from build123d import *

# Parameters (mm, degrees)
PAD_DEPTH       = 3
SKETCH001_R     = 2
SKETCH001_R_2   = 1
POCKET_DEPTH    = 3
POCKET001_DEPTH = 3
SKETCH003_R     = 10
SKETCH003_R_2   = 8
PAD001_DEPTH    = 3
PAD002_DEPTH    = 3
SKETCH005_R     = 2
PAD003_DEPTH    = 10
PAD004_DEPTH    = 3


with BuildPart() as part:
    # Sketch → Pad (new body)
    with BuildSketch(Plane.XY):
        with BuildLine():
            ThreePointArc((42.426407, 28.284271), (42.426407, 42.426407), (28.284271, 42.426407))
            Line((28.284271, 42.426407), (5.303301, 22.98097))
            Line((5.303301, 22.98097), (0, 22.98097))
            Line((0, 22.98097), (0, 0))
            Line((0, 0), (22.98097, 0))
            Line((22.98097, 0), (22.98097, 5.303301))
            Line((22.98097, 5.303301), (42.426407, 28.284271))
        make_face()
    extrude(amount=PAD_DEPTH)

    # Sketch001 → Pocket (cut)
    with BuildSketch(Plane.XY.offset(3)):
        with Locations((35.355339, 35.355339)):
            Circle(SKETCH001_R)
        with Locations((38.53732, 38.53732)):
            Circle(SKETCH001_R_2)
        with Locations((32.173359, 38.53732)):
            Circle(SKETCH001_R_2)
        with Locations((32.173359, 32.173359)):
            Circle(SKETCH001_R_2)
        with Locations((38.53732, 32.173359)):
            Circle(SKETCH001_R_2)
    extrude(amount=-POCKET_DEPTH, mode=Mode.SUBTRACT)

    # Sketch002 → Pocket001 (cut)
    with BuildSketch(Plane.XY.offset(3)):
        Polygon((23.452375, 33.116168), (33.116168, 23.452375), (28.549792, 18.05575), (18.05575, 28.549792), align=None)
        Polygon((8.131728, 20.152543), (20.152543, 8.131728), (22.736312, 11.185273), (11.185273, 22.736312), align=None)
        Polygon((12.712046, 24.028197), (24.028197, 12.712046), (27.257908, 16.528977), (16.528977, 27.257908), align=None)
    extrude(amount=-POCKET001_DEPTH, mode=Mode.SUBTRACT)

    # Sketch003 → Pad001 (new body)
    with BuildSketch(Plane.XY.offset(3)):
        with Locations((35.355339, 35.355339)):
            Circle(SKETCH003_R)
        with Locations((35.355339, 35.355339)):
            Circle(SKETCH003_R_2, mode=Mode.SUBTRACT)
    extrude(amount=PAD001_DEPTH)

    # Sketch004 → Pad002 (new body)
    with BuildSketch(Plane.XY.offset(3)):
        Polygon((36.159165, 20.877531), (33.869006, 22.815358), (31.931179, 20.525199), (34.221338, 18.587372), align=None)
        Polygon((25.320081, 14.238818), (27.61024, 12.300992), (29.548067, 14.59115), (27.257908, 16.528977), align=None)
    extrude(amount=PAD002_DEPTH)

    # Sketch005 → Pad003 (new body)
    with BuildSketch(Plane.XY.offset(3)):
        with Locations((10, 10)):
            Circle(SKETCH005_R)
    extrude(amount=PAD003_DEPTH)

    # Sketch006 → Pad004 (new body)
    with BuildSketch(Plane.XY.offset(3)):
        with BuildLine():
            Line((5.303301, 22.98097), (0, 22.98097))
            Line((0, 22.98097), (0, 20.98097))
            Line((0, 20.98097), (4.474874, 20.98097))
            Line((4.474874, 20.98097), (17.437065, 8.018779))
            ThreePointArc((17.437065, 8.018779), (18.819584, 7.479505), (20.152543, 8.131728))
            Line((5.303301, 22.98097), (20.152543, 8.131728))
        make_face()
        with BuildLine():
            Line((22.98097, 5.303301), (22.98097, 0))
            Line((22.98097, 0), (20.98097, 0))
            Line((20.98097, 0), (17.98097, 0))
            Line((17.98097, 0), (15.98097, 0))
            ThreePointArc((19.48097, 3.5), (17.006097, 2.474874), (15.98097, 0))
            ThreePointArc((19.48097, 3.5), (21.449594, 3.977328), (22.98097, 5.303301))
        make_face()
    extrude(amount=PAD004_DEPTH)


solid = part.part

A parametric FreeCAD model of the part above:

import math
import FreeCAD as App
import Part
import Sketcher
Q = App.Units.Quantity

doc = App.newDocument("Part")
body = doc.addObject("PartDesign::Body", "Body")

sketch1 = body.newObject("Sketcher::SketchObject", "Sketch")
sketch1.AttachmentSupport = (doc.getObject("XY_Plane"), [""])
sketch1.MapMode = "FlatFace"
sketch1.addGeometry([
    Part.ArcOfCircle(Part.Circle(App.Vector(35, 35, 0), App.Vector(0, 0, 1), 10), math.radians(-45), math.radians(135)),
    Part.LineSegment(App.Vector(28, 42, 0), App.Vector(5, 23, 0)),
    Part.LineSegment(App.Vector(5, 23, 0), App.Vector(0, 23, 0)),
    Part.LineSegment(App.Vector(0, 23, 0), App.Vector(0, 0, 0)),
    Part.LineSegment(App.Vector(0, 0, 0), App.Vector(23, 0, 0)),
    Part.LineSegment(App.Vector(23, 0, 0), App.Vector(23, 5, 0)),
    Part.LineSegment(App.Vector(23, 5, 0), App.Vector(42, 28, 0)),
], False)
sketch1.addConstraint([
    Sketcher.Constraint("Coincident", 0, 2, 1, 1),
    Sketcher.Constraint("Coincident", 1, 2, 2, 1),
    Sketcher.Constraint("Coincident", 2, 2, 3, 1),
    Sketcher.Constraint("Coincident", 3, 2, 4, 1),
    Sketcher.Constraint("Coincident", 4, 2, 5, 1),
    Sketcher.Constraint("Coincident", 5, 2, 6, 1),
    Sketcher.Constraint("Coincident", 6, 2, 0, 1),
    Sketcher.Constraint("Horizontal", 2),
    Sketcher.Constraint("Vertical", 3),
    Sketcher.Constraint("Horizontal", 4),
    Sketcher.Constraint("Vertical", 5),
    Sketcher.Constraint("Coincident", 3, 2, -1, 1),
    Sketcher.Constraint("Equal", 4, 3),
    Sketcher.Constraint("Equal", 2, 5),
    Sketcher.Constraint("Equal", 1, 6),
    Sketcher.Constraint("Radius", 0, 10.0),
    Sketcher.Constraint("DistanceX", 2, 2, 2, 1, 5.303301),
    Sketcher.Constraint("DistanceX", 4, 1, 4, 2, 22.98097),
    Sketcher.Constraint("DistanceX", 4, 2, 0, 2, 5.303301),
    Sketcher.Constraint("DistanceY", 1, 2, 6, 2, 5.303301),
    Sketcher.Constraint("DistanceX", -1, 1, 0, 3, 35.355339),
])
pad1 = body.newObject("PartDesign::Pad", "Pad")
pad1.Profile = sketch1
pad1.Length = 3

sketch2 = body.newObject("Sketcher::SketchObject", "Sketch001")
sketch2.AttachmentSupport = (doc.getObject("XY_Plane"), [""])
sketch2.MapMode = "FlatFace"
sketch2.AttachmentOffset = App.Placement(App.Vector(0, 0, 3), App.Rotation())
sketch2.addGeometry([
    Part.Circle(App.Vector(35.4, 35.4, 0), App.Vector(0, 0, 1), 2),
    Part.Circle(App.Vector(38.5, 38.5, 0), App.Vector(0, 0, 1), 1),
    Part.Circle(App.Vector(32.2, 38.5, 0), App.Vector(0, 0, 1), 1),
    Part.Circle(App.Vector(32.2, 32.2, 0), App.Vector(0, 0, 1), 1),
    Part.Circle(App.Vector(38.5, 32.2, 0), App.Vector(0, 0, 1), 1),
], False)
sketch2.addConstraint([
    Sketcher.Constraint("Equal", 1, 2),
    Sketcher.Constraint("Equal", 2, 3),
    Sketcher.Constraint("Equal", 3, 4),
    Sketcher.Constraint("Horizontal", 1, 3, 2, 3),
    Sketcher.Constraint("Horizontal", 3, 3, 4, 3),
    Sketcher.Constraint("Vertical", 2, 3, 3, 3),
    Sketcher.Constraint("Vertical", 1, 3, 4, 3),
    Sketcher.Constraint("Diameter", 0, 4.0),
    Sketcher.Constraint("Diameter", 1, 2.0),
    Sketcher.Constraint("DistanceX", -1, 1, 0, 3, 35.355339),
    Sketcher.Constraint("DistanceY", -1, 1, 0, 3, 35.355339),
    Sketcher.Constraint("DistanceX", -1, 1, 1, 3, 38.53732),
    Sketcher.Constraint("DistanceY", -1, 1, 1, 3, 38.53732),
    Sketcher.Constraint("DistanceX", -1, 1, 2, 3, 32.173359),
    Sketcher.Constraint("DistanceY", -1, 1, 3, 3, 32.173359),
])
pocket1 = body.newObject("PartDesign::Pocket", "Pocket")
pocket1.Profile = sketch2
pocket1.Length = 3

sketch3 = body.newObject("Sketcher::SketchObject", "Sketch002")
sketch3.AttachmentSupport = (doc.getObject("XY_Plane"), [""])
sketch3.MapMode = "FlatFace"
sketch3.AttachmentOffset = App.Placement(App.Vector(0, 0, 3), App.Rotation())
sketch3.addGeometry([
    Part.LineSegment(App.Vector(33.1, 23.5, 0), App.Vector(23.5, 33.1, 0)),
    Part.LineSegment(App.Vector(23.5, 33.1, 0), App.Vector(18.1, 28.5, 0)),
    Part.LineSegment(App.Vector(18.1, 28.5, 0), App.Vector(28.5, 18.1, 0)),
    Part.LineSegment(App.Vector(28.5, 18.1, 0), App.Vector(33.1, 23.5, 0)),
    Part.LineSegment(App.Vector(8.1, 20.2, 0), App.Vector(20.2, 8.1, 0)),
    Part.LineSegment(App.Vector(20.2, 8.1, 0), App.Vector(22.7, 11.2, 0)),
    Part.LineSegment(App.Vector(22.7, 11.2, 0), App.Vector(11.2, 22.7, 0)),
    Part.LineSegment(App.Vector(11.2, 22.7, 0), App.Vector(8.1, 20.2, 0)),
    Part.LineSegment(App.Vector(12.7, 24, 0), App.Vector(24, 12.7, 0)),
    Part.LineSegment(App.Vector(24, 12.7, 0), App.Vector(27.3, 16.5, 0)),
    Part.LineSegment(App.Vector(27.3, 16.5, 0), App.Vector(16.5, 27.3, 0)),
    Part.LineSegment(App.Vector(16.5, 27.3, 0), App.Vector(12.7, 24, 0)),
], False)
sketch3.addConstraint([
    Sketcher.Constraint("Coincident", 0, 2, 1, 1),
    Sketcher.Constraint("Coincident", 1, 2, 2, 1),
    Sketcher.Constraint("Coincident", 2, 2, 3, 1),
    Sketcher.Constraint("Coincident", 3, 2, 0, 1),
    Sketcher.Constraint("Coincident", 4, 2, 5, 1),
    Sketcher.Constraint("Coincident", 5, 2, 6, 1),
    Sketcher.Constraint("Coincident", 6, 2, 7, 1),
    Sketcher.Constraint("Coincident", 7, 2, 4, 1),
    Sketcher.Constraint("Coincident", 8, 2, 9, 1),
    Sketcher.Constraint("Coincident", 9, 2, 10, 1),
    Sketcher.Constraint("Coincident", 10, 2, 11, 1),
    Sketcher.Constraint("Coincident", 11, 2, 8, 1),
    Sketcher.Constraint("Parallel", 0, 2),
    Sketcher.Constraint("Parallel", 2, 4),
    Sketcher.Constraint("Parallel", 3, 5),
    Sketcher.Constraint("Parallel", 4, 6),
    Sketcher.Constraint("Parallel", 1, 7),
    Sketcher.Constraint("Parallel", 6, 8),
    Sketcher.Constraint("Parallel", 5, 9),
    Sketcher.Constraint("Parallel", 8, 10),
    Sketcher.Constraint("Parallel", 7, 11),
    Sketcher.Constraint("Equal", 1, 3),
    Sketcher.Constraint("Angle", 0, Q("135 deg")),
    Sketcher.Constraint("Distance", 4, 17.0),
    Sketcher.Constraint("Distance", 5, 4.0),
    Sketcher.Constraint("Distance", 9, 5.0),
    Sketcher.Constraint("Distance", 10, 15.173),
    Sketcher.Constraint("DistanceY", -1, 1, 0, 2, 33.116168),
    Sketcher.Constraint("DistanceX", -1, 1, 1, 2, 18.05575),
    Sketcher.Constraint("DistanceY", -1, 1, 1, 2, 28.549792),
    Sketcher.Constraint("DistanceX", -1, 1, 2, 2, 28.549792),
    Sketcher.Constraint("DistanceY", -1, 1, 4, 2, 8.131728),
    Sketcher.Constraint("DistanceX", -1, 1, 7, 2, 8.131728),
    Sketcher.Constraint("DistanceX", -1, 1, 9, 2, 27.257908),
    Sketcher.Constraint("DistanceY", -1, 1, 10, 2, 27.257908),
    Sketcher.Constraint("DistanceX", 4, 2, 0, 2, 3.299832),
])
pocket2 = body.newObject("PartDesign::Pocket", "Pocket001")
pocket2.Profile = sketch3
pocket2.Length = 3

sketch4 = body.newObject("Sketcher::SketchObject", "Sketch003")
sketch4.AttachmentSupport = (doc.getObject("XY_Plane"), [""])
sketch4.MapMode = "FlatFace"
sketch4.AttachmentOffset = App.Placement(App.Vector(0, 0, 3), App.Rotation())
sketch4.addGeometry([
    Part.Circle(App.Vector(35, 35, 0), App.Vector(0, 0, 1), 10),
    Part.Circle(App.Vector(35, 35, 0), App.Vector(0, 0, 1), 8),
], False)
sketch4.addConstraint([
    Sketcher.Constraint("Coincident", 1, 3, 0, 3),
    Sketcher.Constraint("Diameter", 0, 20.0),
    Sketcher.Constraint("Diameter", 1, 16.0),
    Sketcher.Constraint("DistanceX", -1, 1, 0, 3, 35.355339),
    Sketcher.Constraint("DistanceY", -1, 1, 0, 3, 35.355339),
])
pad2 = body.newObject("PartDesign::Pad", "Pad001")
pad2.Profile = sketch4
pad2.Length = 3

sketch5 = body.newObject("Sketcher::SketchObject", "Sketch004")
sketch5.AttachmentSupport = (doc.getObject("XY_Plane"), [""])
sketch5.MapMode = "FlatFace"
sketch5.AttachmentOffset = App.Placement(App.Vector(0, 0, 3), App.Rotation())
sketch5.addGeometry([
    Part.LineSegment(App.Vector(36.2, 20.9, 0), App.Vector(33.9, 22.8, 0)),
    Part.LineSegment(App.Vector(33.9, 22.8, 0), App.Vector(31.9, 20.5, 0)),
    Part.LineSegment(App.Vector(31.9, 20.5, 0), App.Vector(34.2, 18.6, 0)),
    Part.LineSegment(App.Vector(34.2, 18.6, 0), App.Vector(36.2, 20.9, 0)),
    Part.LineSegment(App.Vector(25.3, 14.2, 0), App.Vector(27.6, 12.3, 0)),
    Part.LineSegment(App.Vector(27.6, 12.3, 0), App.Vector(29.5, 14.6, 0)),
    Part.LineSegment(App.Vector(29.5, 14.6, 0), App.Vector(27.3, 16.5, 0)),
    Part.LineSegment(App.Vector(27.3, 16.5, 0), App.Vector(25.3, 14.2, 0)),
], False)
sketch5.addConstraint([
    Sketcher.Constraint("Coincident", 0, 2, 1, 1),
    Sketcher.Constraint("Coincident", 1, 2, 2, 1),
    Sketcher.Constraint("Coincident", 2, 2, 3, 1),
    Sketcher.Constraint("Coincident", 3, 2, 0, 1),
    Sketcher.Constraint("Coincident", 4, 2, 5, 1),
    Sketcher.Constraint("Coincident", 5, 2, 6, 1),
    Sketcher.Constraint("Coincident", 6, 2, 7, 1),
    Sketcher.Constraint("Coincident", 7, 2, 4, 1),
    Sketcher.Constraint("Perpendicular", 0, 1),
    Sketcher.Constraint("Perpendicular", 1, 2),
    Sketcher.Constraint("Perpendicular", 2, 3),
    Sketcher.Constraint("Perpendicular", 3, 4),
    Sketcher.Constraint("Perpendicular", 4, 5),
    Sketcher.Constraint("Perpendicular", 5, 6),
    Sketcher.Constraint("Perpendicular", 6, 7),
    Sketcher.Constraint("Equal", 0, 1),
    Sketcher.Constraint("Equal", 3, 4),
    Sketcher.Constraint("Equal", 4, 5),
    Sketcher.Constraint("Distance", 0, 3.0),
    Sketcher.Constraint("DistanceY", -1, 1, 1, 2, 20.525199),
    Sketcher.Constraint("DistanceX", 4, 2, 2, 2, 6.611098),
    Sketcher.Constraint("DistanceY", -1, 1, 0, 2, 22.815358),
    Sketcher.Constraint("DistanceX", -1, 1, 1, 2, 31.931179),
    Sketcher.Constraint("DistanceY", -1, 1, 5, 2, 14.59115),
])
pad3 = body.newObject("PartDesign::Pad", "Pad002")
pad3.Profile = sketch5
pad3.Length = 3

sketch6 = body.newObject("Sketcher::SketchObject", "Sketch005")
sketch6.AttachmentSupport = (doc.getObject("XY_Plane"), [""])
sketch6.MapMode = "FlatFace"
sketch6.AttachmentOffset = App.Placement(App.Vector(0, 0, 3), App.Rotation())
sketch6.addGeometry(Part.Circle(App.Vector(10, 10, 0), App.Vector(0, 0, 1), 2), False)
sketch6.addConstraint([
    Sketcher.Constraint("Diameter", 0, 4.0),
    Sketcher.Constraint("DistanceX", -1, 1, 0, 3, 10.0),
    Sketcher.Constraint("DistanceY", -1, 1, 0, 3, 10.0),
])
pad4 = body.newObject("PartDesign::Pad", "Pad003")
pad4.Profile = sketch6
pad4.Length = 10

sketch7 = body.newObject("Sketcher::SketchObject", "Sketch006")
sketch7.AttachmentSupport = (doc.getObject("XY_Plane"), [""])
sketch7.MapMode = "FlatFace"
sketch7.AttachmentOffset = App.Placement(App.Vector(0, 0, 3), App.Rotation())
sketch7.addGeometry([
    Part.LineSegment(App.Vector(5.3, 23, 0), App.Vector(0, 23, 0)),
    Part.LineSegment(App.Vector(0, 23, 0), App.Vector(0, 21, 0)),
    Part.LineSegment(App.Vector(0, 21, 0), App.Vector(4.5, 21, 0)),
    Part.LineSegment(App.Vector(4.5, 21, 0), App.Vector(17.4, 8, 0)),
    Part.ArcOfCircle(Part.Circle(App.Vector(18.7, 9.3, 0), App.Vector(0, 0, 1), 1.8), math.radians(-135), math.radians(-40)),
    Part.LineSegment(App.Vector(20.2, 8.1, 0), App.Vector(5.3, 23, 0)),
    Part.LineSegment(App.Vector(23, 0, 0), App.Vector(23, 5.3, 0)),
    Part.ArcOfCircle(Part.Circle(App.Vector(19.5, 7.8, 0), App.Vector(0, 0, 1), 4.3), math.radians(-90), math.radians(-35)),
    Part.ArcOfCircle(Part.Circle(App.Vector(19.5, 0, 0), App.Vector(0, 0, 1), 3.5), math.radians(90), math.radians(180)),
    Part.LineSegment(App.Vector(16, 0, 0), App.Vector(23, 0, 0)),
], False)
sketch7.addConstraint([
    Sketcher.Constraint("Coincident", 0, 2, 1, 1),
    Sketcher.Constraint("Coincident", 1, 2, 2, 1),
    Sketcher.Constraint("Coincident", 2, 2, 3, 1),
    Sketcher.Constraint("Tangent", 3, 2, 4, 1),
    Sketcher.Constraint("Coincident", 4, 2, 5, 1),
    Sketcher.Constraint("Coincident", 5, 2, 0, 1),
    Sketcher.Constraint("Coincident", 6, 2, 7, 2),
    Sketcher.Constraint("Coincident", 7, 1, 8, 1),
    Sketcher.Constraint("Coincident", 8, 2, 9, 1),
    Sketcher.Constraint("Coincident", 9, 2, 6, 1),
    Sketcher.Constraint("Horizontal", 0),
    Sketcher.Constraint("Vertical", 1),
    Sketcher.Constraint("Horizontal", 2),
    Sketcher.Constraint("Vertical", 6),
    Sketcher.Constraint("Horizontal", 9),
    Sketcher.Constraint("PointOnObject", 8, 3, -1),
    Sketcher.Constraint("PointOnObject", 0, 2, -2),
    Sketcher.Constraint("PointOnObject", 8, 2, -1),
    Sketcher.Constraint("Parallel", 3, 5),
    Sketcher.Constraint("Vertical", 8, 3, 7, 1),
    Sketcher.Constraint("Equal", 0, 6),
    Sketcher.Constraint("Radius", 8, 3.500001),
    Sketcher.Constraint("DistanceX", 9, 1, 9, 2, 7.0),
    Sketcher.Constraint("DistanceY", 1, 2, 1, 1, 2.0),
    Sketcher.Constraint("Angle", 3, Q("-45 deg")),
    Sketcher.Constraint("Distance", 5, 20.999999),
    Sketcher.Constraint("Radius", 7, 4.29818),
    Sketcher.Constraint("DistanceX", 0, 2, 0, 1, 5.303301),
    Sketcher.Constraint("Radius", 4, 1.846645),
    Sketcher.Constraint("DistanceY", 7, 3, 3, 2, 0.220599),
    Sketcher.Constraint("DistanceX", 2, 1, 2, 2, 4.474874),
    Sketcher.Constraint("DistanceX", -1, 1, 7, 3, 19.48098),
])
pad5 = body.newObject("PartDesign::Pad", "Pad004")
pad5.Profile = sketch7
pad5.Length = 3

doc.recompute()
